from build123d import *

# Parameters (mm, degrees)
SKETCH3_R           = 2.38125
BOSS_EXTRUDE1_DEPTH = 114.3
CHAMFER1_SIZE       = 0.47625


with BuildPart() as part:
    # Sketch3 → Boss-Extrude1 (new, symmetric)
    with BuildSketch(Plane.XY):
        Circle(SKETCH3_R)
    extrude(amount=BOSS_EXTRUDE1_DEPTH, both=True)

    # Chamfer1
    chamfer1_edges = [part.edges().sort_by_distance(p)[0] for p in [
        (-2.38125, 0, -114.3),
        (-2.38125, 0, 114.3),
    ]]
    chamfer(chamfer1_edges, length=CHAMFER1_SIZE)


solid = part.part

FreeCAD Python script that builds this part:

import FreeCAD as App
import Part
import Sketcher
Q = App.Units.Quantity


def edges_at(feature, points):
    """Names of the edges that pass closest to the given points."""
    edges = feature.Shape.Edges
    near = lambda p: min(range(len(edges)), key=lambda i: edges[i].distToShape(Part.Vertex(*p))[0])
    return sorted({f"Edge{near(p) + 1}" for p in points})

doc = App.newDocument("Part")
body = doc.addObject("PartDesign::Body", "Body")

sketch1 = body.newObject("Sketcher::SketchObject", "Sketch")
sketch1.AttachmentSupport = (doc.getObject("XY_Plane"), [""])
sketch1.MapMode = "FlatFace"
sketch1.addGeometry(Part.Circle(App.Vector(0, 0, 0), App.Vector(0, 0, 1), 2.38125), False)
sketch1.addConstraint([
    Sketcher.Constraint("Coincident", 0, 3, -1, 1),
    Sketcher.Constraint("Diameter", 0, Q("0.1875 in")),
])
pad1 = body.newObject("PartDesign::Pad", "Pad")
pad1.Profile = sketch1
pad1.Length = Q("9 in")
pad1.Midplane = True
doc.recompute()

chamfer = body.newObject("PartDesign::Chamfer", "Chamfer")
chamfer.Base = (pad1, edges_at(pad1, [(-2.381, 0, -114.3), (-2.381, 0, 114.3)]))
chamfer.Size = 0.47625

doc.recompute()
